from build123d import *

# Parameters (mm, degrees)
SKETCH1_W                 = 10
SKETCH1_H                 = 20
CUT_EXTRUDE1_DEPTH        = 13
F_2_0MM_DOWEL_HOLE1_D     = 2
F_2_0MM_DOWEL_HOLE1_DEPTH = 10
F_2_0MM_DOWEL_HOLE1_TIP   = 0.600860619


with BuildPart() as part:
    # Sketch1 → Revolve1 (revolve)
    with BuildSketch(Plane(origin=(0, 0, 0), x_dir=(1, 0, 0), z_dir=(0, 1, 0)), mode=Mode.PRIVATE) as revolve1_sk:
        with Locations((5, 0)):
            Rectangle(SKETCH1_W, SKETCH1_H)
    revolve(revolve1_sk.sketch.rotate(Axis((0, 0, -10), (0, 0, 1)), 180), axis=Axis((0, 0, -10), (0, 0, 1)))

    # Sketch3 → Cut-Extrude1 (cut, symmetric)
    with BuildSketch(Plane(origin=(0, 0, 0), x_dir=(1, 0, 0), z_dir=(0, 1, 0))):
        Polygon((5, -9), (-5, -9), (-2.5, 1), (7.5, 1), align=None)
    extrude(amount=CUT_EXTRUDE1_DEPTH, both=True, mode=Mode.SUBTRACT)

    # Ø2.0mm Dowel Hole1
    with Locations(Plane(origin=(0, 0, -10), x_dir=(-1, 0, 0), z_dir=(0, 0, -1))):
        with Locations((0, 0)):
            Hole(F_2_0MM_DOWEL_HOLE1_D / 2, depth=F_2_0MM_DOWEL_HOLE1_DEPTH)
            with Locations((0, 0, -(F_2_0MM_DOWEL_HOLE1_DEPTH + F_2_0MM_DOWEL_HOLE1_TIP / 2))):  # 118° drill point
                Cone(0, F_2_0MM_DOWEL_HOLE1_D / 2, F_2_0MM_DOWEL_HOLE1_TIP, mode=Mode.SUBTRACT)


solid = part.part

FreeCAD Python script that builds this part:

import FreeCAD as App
import Part
import Sketcher

doc = App.newDocument("Part")
body = doc.addObject("PartDesign::Body", "Body")

sketch1 = body.newObject("Sketcher::SketchObject", "Sketch")
sketch1.AttachmentSupport = (doc.getObject("XZ_Plane"), [""])
sketch1.MapMode = "FlatFace"
sketch1.addGeometry([
    Part.LineSegment(App.Vector(0, -10, 0), App.Vector(0, 10, 0)),
    Part.LineSegment(App.Vector(0, 10, 0), App.Vector(10, 10, 0)),
    Part.LineSegment(App.Vector(10, 10, 0), App.Vector(10, -10, 0)),
    Part.LineSegment(App.Vector(10, -10, 0), App.Vector(0, -10, 0)),
], False)
sketch1.addConstraint([
    Sketcher.Constraint("Coincident", 0, 2, 1, 1),
    Sketcher.Constraint("Coincident", 1, 2, 2, 1),
    Sketcher.Constraint("Coincident", 2, 2, 3, 1),
    Sketcher.Constraint("Coincident", 3, 2, 0, 1),
    Sketcher.Constraint("Vertical", 0),
    Sketcher.Constraint("Horizontal", 1),
    Sketcher.Constraint("Vertical", 2),
    Sketcher.Constraint("Horizontal", 3),
    Sketcher.Constraint("Symmetric", 0, 2, 3, 2, -1, 1),
    Sketcher.Constraint("DistanceX", 1, 1, 1, 2, 10.0),
    Sketcher.Constraint("DistanceY", 0, 1, 0, 2, 20.0),
])
revolution = body.newObject("PartDesign::Revolution", "Revolution")
revolution.Profile = sketch1
revolution.ReferenceAxis = (sketch1, ["V_Axis"])
revolution.Angle = 360

sketch2 = body.newObject("Sketcher::SketchObject", "Sketch001")
sketch2.AttachmentSupport = (doc.getObject("XZ_Plane"), [""])
sketch2.MapMode = "FlatFace"
sketch2.addGeometry([
    Part.LineSegment(App.Vector(-5, 9, 0), App.Vector(5, 9, 0)),
    Part.LineSegment(App.Vector(5, 9, 0), App.Vector(8, -1, 0)),
    Part.LineSegment(App.Vector(8, -1, 0), App.Vector(-2, -1, 0)),
    Part.LineSegment(App.Vector(-2, -1, 0), App.Vector(-5, 9, 0)),
], False)
sketch2.addConstraint([
    Sketcher.Constraint("Coincident", 0, 2, 1, 1),
    Sketcher.Constraint("Coincident", 1, 2, 2, 1),
    Sketcher.Constraint("Coincident", 2, 2, 3, 1),
    Sketcher.Constraint("Coincident", 3, 2, 0, 1),
    Sketcher.Constraint("Horizontal", 0),
    Sketcher.Constraint("Horizontal", 2),
    Sketcher.Constraint("Parallel", 1, 3),
    Sketcher.Constraint("DistanceX", 0, 1, 0, 2, 10.0),
    Sketcher.Constraint("DistanceX", -1, 1, 0, 2, 5.0),
    Sketcher.Constraint("DistanceY", -1, 1, 0, 2, 9.0),
    Sketcher.Constraint("DistanceY", 1, 2, -1, 1, 1.0),
    Sketcher.Constraint("DistanceX", -1, 1, 1, 2, 7.5),
])
pocket1 = body.newObject("PartDesign::Pocket", "Pocket")
pocket1.Profile = sketch2
pocket1.Length = 26
pocket1.Midplane = True

sketch3 = body.newObject("Sketcher::SketchObject", "Sketch002")
sketch3.AttachmentSupport = (doc.getObject("XY_Plane"), [""])
sketch3.MapMode = "FlatFace"
sketch3.AttachmentOffset = App.Placement(App.Vector(0, 0, -10), App.Rotation())
sketch3.addGeometry(Part.Circle(App.Vector(0, 0, 0), App.Vector(0, 0, 1), 1), False)
sketch3.addConstraint([
    Sketcher.Constraint("Coincident", 0, 3, -1, 1),
    Sketcher.Constraint("Diameter", 0, 2.0),
])
doc.recompute()
hole = body.newObject("PartDesign::Hole", "Hole")
hole.Profile = sketch3
hole.ThreadType = "None"
hole.Diameter = 2
hole.DepthType = "Dimension"
hole.Depth = 10
hole.DrillPoint = "Angled"
hole.DrillPointAngle = 118
hole.Reversed = True

doc.recompute()
